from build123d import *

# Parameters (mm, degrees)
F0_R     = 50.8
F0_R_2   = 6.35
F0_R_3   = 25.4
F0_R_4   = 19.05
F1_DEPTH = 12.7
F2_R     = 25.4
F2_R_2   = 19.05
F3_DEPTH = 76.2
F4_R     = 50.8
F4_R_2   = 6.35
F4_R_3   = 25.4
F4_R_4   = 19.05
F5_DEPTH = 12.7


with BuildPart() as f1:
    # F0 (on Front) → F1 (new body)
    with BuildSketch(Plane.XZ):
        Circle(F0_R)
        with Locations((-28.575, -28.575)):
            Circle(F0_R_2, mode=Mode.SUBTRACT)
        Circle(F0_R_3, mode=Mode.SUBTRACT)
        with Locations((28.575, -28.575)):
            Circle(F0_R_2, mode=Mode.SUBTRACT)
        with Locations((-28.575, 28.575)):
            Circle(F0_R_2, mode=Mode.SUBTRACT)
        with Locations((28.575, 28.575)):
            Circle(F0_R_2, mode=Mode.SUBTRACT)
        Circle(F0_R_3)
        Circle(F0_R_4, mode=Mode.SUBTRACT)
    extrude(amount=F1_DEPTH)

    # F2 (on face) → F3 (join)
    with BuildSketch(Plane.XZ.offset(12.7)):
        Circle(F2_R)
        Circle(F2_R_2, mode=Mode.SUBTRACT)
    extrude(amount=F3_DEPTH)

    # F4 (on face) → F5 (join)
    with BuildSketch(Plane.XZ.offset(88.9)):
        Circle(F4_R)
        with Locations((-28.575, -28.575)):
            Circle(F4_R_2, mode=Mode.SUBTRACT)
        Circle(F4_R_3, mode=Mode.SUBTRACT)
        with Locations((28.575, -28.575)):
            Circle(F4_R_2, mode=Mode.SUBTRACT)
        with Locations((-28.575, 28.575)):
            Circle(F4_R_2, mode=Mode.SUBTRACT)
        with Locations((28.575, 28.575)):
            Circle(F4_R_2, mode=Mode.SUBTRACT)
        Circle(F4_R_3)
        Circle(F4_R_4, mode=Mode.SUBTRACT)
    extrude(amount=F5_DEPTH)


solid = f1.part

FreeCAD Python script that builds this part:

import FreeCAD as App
import Part
import Sketcher
Q = App.Units.Quantity

doc = App.newDocument("Part")
body = doc.addObject("PartDesign::Body", "Body")

sketch1 = doc.addObject("Sketcher::SketchObject", "Sketch")
body.addObject(sketch1)
sketch1.AttachmentSupport = (doc.XZ_Plane, [""])
sketch1.MapMode = "FlatFace"
sketch1.addGeometry([
    Part.Circle(App.Vector(0, 0, 0), App.Vector(0, 0, 1), 51),
    Part.Circle(App.Vector(-29, -29, 0), App.Vector(0, 0, 1), 6),
    Part.Circle(App.Vector(29, -29, 0), App.Vector(0, 0, 1), 6),
    Part.Circle(App.Vector(-29, 29, 0), App.Vector(0, 0, 1), 6),
    Part.Circle(App.Vector(0, 0, 0), App.Vector(0, 0, 1), 19),
    Part.Circle(App.Vector(29, 29, 0), App.Vector(0, 0, 1), 6),
], False)
sketch1.addConstraint([
    Sketcher.Constraint("Coincident", 0, 3, -1, 1),
    Sketcher.Constraint("Coincident", 4, 3, -1, 1),
    Sketcher.Constraint("Equal", 1, 2),
    Sketcher.Constraint("Equal", 2, 3),
    Sketcher.Constraint("Equal", 3, 5),
    Sketcher.Constraint("Symmetric", 2, 3, 3, 3, -1, 1),
    Sketcher.Constraint("Symmetric", 1, 3, 5, 3, -1, 1),
    Sketcher.Constraint("Symmetric", 1, 3, 2, 3, -2),
    Sketcher.Constraint("Diameter", 0, Q("4 in")),
    Sketcher.Constraint("Diameter", 1, Q("0.5 in")),
    Sketcher.Constraint("Diameter", 4, Q("1.5 in")),
    Sketcher.Constraint("DistanceX", 1, 3, 2, 3, Q("2.25 in")),
    Sketcher.Constraint("DistanceY", 1, 3, 3, 3, Q("2.25 in")),
])
pad1 = doc.addObject("PartDesign::Pad", "Pad")
body.addObject(pad1)
pad1.Profile = sketch1
pad1.Length = Q("0.5 in")

sketch2 = doc.addObject("Sketcher::SketchObject", "Sketch001")
body.addObject(sketch2)
sketch2.AttachmentSupport = (doc.XZ_Plane, [""])
sketch2.MapMode = "FlatFace"
sketch2.AttachmentOffset = App.Placement(App.Vector(0, 0, 0.5 * 25.4), App.Rotation())
sketch2.addGeometry([
    Part.Circle(App.Vector(0, 0, 0), App.Vector(0, 0, 1), 25),
    Part.Circle(App.Vector(0, 0, 0), App.Vector(0, 0, 1), 19),
], False)
sketch2.addConstraint([
    Sketcher.Constraint("Coincident", 0, 3, -1, 1),
    Sketcher.Constraint("Coincident", 1, 3, -1, 1),
    Sketcher.Constraint("Diameter", 0, Q("2 in")),
    Sketcher.Constraint("Diameter", 1, Q("1.5 in")),
])
pad2 = doc.addObject("PartDesign::Pad", "Pad001")
body.addObject(pad2)
pad2.Profile = sketch2
pad2.Length = Q("3 in")

sketch3 = doc.addObject("Sketcher::SketchObject", "Sketch002")
body.addObject(sketch3)
sketch3.AttachmentSupport = (doc.XZ_Plane, [""])
sketch3.MapMode = "FlatFace"
sketch3.AttachmentOffset = App.Placement(App.Vector(0, 0, 3.5 * 25.4), App.Rotation())
sketch3.addGeometry([
    Part.Circle(App.Vector(0, 0, 0), App.Vector(0, 0, 1), 51),
    Part.Circle(App.Vector(-29, -29, 0), App.Vector(0, 0, 1), 6),
    Part.Circle(App.Vector(29, -29, 0), App.Vector(0, 0, 1), 6),
    Part.Circle(App.Vector(-29, 29, 0), App.Vector(0, 0, 1), 6),
    Part.Circle(App.Vector(0, 0, 0), App.Vector(0, 0, 1), 19),
    Part.Circle(App.Vector(29, 29, 0), App.Vector(0, 0, 1), 6),
], False)
sketch3.addConstraint([
    Sketcher.Constraint("Coincident", 0, 3, -1, 1),
    Sketcher.Constraint("Coincident", 4, 3, -1, 1),
    Sketcher.Constraint("Equal", 1, 2),
    Sketcher.Constraint("Equal", 2, 3),
    Sketcher.Constraint("Equal", 3, 5),
    Sketcher.Constraint("Symmetric", 2, 3, 3, 3, -1, 1),
    Sketcher.Constraint("Symmetric", 1, 3, 5, 3, -1, 1),
    Sketcher.Constraint("Symmetric", 1, 3, 2, 3, -2),
    Sketcher.Constraint("Diameter", 0, Q("4 in")),
    Sketcher.Constraint("Diameter", 1, Q("0.5 in")),
    Sketcher.Constraint("Diameter", 4, Q("1.5 in")),
    Sketcher.Constraint("DistanceX", 1, 3, 2, 3, Q("2.25 in")),
    Sketcher.Constraint("DistanceY", 1, 3, 3, 3, Q("2.25 in")),
])
pad3 = doc.addObject("PartDesign::Pad", "Pad002")
body.addObject(pad3)
pad3.Profile = sketch3
pad3.Length = Q("0.5 in")

doc.recompute()
